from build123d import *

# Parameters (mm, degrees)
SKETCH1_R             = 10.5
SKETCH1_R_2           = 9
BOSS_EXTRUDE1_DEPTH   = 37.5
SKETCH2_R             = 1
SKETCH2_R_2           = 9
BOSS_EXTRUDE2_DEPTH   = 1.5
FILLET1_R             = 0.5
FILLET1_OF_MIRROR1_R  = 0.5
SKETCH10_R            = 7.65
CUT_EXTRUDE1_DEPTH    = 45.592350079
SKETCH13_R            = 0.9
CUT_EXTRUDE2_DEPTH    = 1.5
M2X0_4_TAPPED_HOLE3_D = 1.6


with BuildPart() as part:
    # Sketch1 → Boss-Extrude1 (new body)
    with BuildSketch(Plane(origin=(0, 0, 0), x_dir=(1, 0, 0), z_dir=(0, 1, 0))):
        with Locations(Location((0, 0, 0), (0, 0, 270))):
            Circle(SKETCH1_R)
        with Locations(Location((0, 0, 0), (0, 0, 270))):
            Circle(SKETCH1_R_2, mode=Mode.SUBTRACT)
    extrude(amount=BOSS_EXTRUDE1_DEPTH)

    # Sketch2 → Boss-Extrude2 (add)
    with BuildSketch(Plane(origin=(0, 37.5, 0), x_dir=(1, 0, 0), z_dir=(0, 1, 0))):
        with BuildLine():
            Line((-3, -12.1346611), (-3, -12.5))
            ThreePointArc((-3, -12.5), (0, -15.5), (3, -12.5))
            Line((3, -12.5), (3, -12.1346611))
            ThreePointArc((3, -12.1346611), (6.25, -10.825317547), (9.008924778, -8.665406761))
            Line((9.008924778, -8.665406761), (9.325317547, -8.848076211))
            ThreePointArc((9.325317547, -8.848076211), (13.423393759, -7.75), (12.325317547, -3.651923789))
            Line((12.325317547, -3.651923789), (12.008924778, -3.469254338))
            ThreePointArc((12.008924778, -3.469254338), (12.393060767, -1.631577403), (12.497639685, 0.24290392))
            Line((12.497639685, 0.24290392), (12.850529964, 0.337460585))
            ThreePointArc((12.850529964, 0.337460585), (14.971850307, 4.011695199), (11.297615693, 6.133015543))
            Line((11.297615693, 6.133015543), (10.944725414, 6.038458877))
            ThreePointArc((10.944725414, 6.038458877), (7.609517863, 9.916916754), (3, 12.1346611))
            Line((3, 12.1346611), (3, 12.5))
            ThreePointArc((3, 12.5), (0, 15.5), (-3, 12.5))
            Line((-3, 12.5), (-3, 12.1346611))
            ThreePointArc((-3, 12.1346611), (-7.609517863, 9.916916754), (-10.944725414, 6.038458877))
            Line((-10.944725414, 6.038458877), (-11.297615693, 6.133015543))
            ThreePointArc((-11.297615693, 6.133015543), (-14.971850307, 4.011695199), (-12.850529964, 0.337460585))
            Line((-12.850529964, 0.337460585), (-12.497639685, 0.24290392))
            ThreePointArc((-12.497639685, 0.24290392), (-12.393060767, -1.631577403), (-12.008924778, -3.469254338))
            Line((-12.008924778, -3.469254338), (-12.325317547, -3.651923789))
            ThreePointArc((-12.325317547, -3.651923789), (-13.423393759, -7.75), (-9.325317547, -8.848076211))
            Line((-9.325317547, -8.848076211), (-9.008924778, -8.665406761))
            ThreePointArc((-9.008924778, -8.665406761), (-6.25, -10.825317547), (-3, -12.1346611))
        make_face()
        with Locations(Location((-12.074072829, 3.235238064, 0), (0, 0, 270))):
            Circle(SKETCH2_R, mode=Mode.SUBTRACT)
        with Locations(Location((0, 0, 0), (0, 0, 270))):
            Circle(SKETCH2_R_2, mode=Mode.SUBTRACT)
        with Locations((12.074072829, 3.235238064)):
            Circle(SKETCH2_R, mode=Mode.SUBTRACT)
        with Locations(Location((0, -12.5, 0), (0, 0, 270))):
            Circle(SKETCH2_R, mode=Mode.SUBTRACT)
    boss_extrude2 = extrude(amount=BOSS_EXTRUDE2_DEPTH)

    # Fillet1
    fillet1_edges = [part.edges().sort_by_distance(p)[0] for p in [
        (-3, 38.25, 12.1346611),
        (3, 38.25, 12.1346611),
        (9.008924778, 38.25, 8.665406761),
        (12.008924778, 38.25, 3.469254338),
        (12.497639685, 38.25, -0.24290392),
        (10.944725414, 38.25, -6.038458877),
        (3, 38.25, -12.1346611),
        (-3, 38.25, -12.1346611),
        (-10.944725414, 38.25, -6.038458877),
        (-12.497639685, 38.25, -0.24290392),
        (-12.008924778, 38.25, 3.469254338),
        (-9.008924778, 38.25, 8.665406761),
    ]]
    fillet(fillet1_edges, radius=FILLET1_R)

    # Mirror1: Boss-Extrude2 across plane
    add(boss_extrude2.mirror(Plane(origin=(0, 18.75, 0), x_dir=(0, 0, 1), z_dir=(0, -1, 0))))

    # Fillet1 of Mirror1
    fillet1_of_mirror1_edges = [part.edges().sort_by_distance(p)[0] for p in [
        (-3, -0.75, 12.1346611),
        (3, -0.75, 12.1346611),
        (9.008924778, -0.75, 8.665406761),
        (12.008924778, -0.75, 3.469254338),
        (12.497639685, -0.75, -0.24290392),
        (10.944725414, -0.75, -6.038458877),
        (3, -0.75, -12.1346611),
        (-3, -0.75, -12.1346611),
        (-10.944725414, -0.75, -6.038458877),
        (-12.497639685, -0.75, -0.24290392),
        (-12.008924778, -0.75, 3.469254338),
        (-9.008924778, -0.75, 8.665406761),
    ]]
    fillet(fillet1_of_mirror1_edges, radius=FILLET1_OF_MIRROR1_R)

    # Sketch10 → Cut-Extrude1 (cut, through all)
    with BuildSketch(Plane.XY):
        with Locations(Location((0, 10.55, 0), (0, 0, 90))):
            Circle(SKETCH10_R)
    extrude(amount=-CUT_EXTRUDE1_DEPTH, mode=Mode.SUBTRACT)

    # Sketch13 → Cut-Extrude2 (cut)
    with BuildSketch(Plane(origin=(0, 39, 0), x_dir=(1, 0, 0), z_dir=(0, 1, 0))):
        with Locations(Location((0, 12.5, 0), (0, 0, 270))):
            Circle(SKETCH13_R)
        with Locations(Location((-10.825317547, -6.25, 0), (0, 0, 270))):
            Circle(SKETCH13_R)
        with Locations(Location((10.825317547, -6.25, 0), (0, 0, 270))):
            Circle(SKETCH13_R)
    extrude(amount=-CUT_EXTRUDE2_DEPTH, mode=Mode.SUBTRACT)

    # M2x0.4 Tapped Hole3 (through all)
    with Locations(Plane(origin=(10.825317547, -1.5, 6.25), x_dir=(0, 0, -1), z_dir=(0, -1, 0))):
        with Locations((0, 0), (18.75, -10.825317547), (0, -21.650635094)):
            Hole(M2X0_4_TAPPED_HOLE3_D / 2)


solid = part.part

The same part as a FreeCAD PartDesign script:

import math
import FreeCAD as App
import Part
import Sketcher
from FreeCAD import Vector
Q = App.Units.Quantity


def edges_at(feature, points):
    """Names of the edges that pass closest to the given points."""
    edges = feature.Shape.Edges
    near = lambda p: min(range(len(edges)), key=lambda i: edges[i].distToShape(Part.Vertex(*p))[0])
    return sorted({f"Edge{near(p) + 1}" for p in points})

doc = App.newDocument("Part")
params = doc.addObject("Spreadsheet::Sheet", "Params")
for row, (alias, value) in enumerate([
    ("sketch1_diameter", "21 mm"),
    ("sketch1_diameter2", "18 mm"),
    ("pad1_length", "37.5 mm"),
    ("sketch2_diameter", "2 mm"),
    ("sketch2_diameter2", "18 mm"),
    ("sketch2_radius", "3 mm"),
    ("sketch2_radius2", "12.5 mm"),
    ("pad2_length", "1.5 mm"),
    ("fillet_radius", "0.5 mm"),
    ("fillet2_radius", "0.5 mm"),
    ("sketch3_diameter", "15.3 mm"),
    ("sketch4_diameter", "1.8 mm"),
    ("pocket2_length", "1.5 mm"),
    ("sketch5_diameter", "1.6 mm"),
    ("hole_diameter", "1.6 mm"),
], start=1):
    params.set(f"A{row}", alias)
    params.set(f"B{row}", "=" + value)
    params.setAlias(f"B{row}", alias)

body = doc.addObject("PartDesign::Body", "Body")

sketch1 = body.newObject("Sketcher::SketchObject", "Sketch")
sketch1.AttachmentSupport = (doc.getObject("XZ_Plane"), [""])
sketch1.MapMode = "FlatFace"
sketch1.addGeometry(Part.Circle(Vector(0, 0, 0), Vector(0, 0, 1), 10), False)
sketch1.addGeometry(Part.Circle(Vector(0, 0, 0), Vector(0, 0, 1), 9), False)
sketch1.addConstraint(Sketcher.Constraint("Coincident", 0, 3, -1, 1))
sketch1.addConstraint(Sketcher.Constraint("Coincident", 1, 3, -1, 1))
sketch1.addConstraint(Sketcher.Constraint("Diameter", 0, 21.0))
sketch1.addConstraint(Sketcher.Constraint("Diameter", 1, 18.0))
sketch1.setExpression("Constraints[2]", "Params.sketch1_diameter")
sketch1.setExpression("Constraints[3]", "Params.sketch1_diameter2")
pad1 = body.newObject("PartDesign::Pad", "Pad")
pad1.Profile = sketch1
pad1.setExpression("Length", "Params.pad1_length")
pad1.Reversed = True

sketch2 = body.newObject("Sketcher::SketchObject", "Sketch001")
sketch2.AttachmentSupport = (doc.getObject("XZ_Plane"), [""])
sketch2.MapMode = "FlatFace"
sketch2.AttachmentOffset = App.Placement(Vector(0, 0, -37.5), App.Rotation())
sketch2.addGeometry(Part.LineSegment(Vector(-3, 12.13, 0), Vector(-3, 12.5, 0)), False)
sketch2.addGeometry(Part.ArcOfCircle(Part.Circle(Vector(0, 12.5, 0), Vector(0, 0, 1), 3), math.radians(0), math.radians(180)), False)
sketch2.addGeometry(Part.LineSegment(Vector(3, 12.5, 0), Vector(3, 12.13, 0)), False)
sketch2.addGeometry(Part.ArcOfCircle(Part.Circle(Vector(0, 0, 0), Vector(0, 0, 1), 12.5), math.radians(44), math.radians(76)), False)
sketch2.addGeometry(Part.LineSegment(Vector(9.01, 8.67, 0), Vector(9.33, 8.85, 0)), False)
sketch2.addGeometry(Part.ArcOfCircle(Part.Circle(Vector(10.83, 6.25, 0), Vector(0, 0, 1), 3), math.radians(-60), math.radians(120)), False)
sketch2.addGeometry(Part.LineSegment(Vector(12.33, 3.65, 0), Vector(12.01, 3.47, 0)), False)
sketch2.addGeometry(Part.ArcOfCircle(Part.Circle(Vector(0, 0, 0), Vector(0, 0, 1), 12.5), math.radians(-1.11), math.radians(16.11)), False)
sketch2.addGeometry(Part.LineSegment(Vector(12.5, -0.24, 0), Vector(12.85, -0.34, 0)), False)
sketch2.addGeometry(Part.ArcOfCircle(Part.Circle(Vector(12.07, -3.24, 0), Vector(0, 0, 1), 3), math.radians(-105), math.radians(75)), False)
sketch2.addGeometry(Part.LineSegment(Vector(11.3, -6.13, 0), Vector(10.94, -6.04, 0)), False)
sketch2.addGeometry(Part.ArcOfCircle(Part.Circle(Vector(0, 0, 0), Vector(0, 0, 1), 12.5), math.radians(-76), math.radians(-29)), False)
sketch2.addGeometry(Part.LineSegment(Vector(3, -12.13, 0), Vector(3, -12.5, 0)), False)
sketch2.addGeometry(Part.ArcOfCircle(Part.Circle(Vector(0, -12.5, 0), Vector(0, 0, 1), 3), math.radians(180), math.radians(360)), False)
sketch2.addGeometry(Part.LineSegment(Vector(-3, -12.5, 0), Vector(-3, -12.13, 0)), False)
sketch2.addGeometry(Part.ArcOfCircle(Part.Circle(Vector(0, 0, 0), Vector(0, 0, 1), 12.5), math.radians(-151), math.radians(-104)), False)
sketch2.addGeometry(Part.LineSegment(Vector(-10.94, -6.04, 0), Vector(-11.3, -6.13, 0)), False)
sketch2.addGeometry(Part.ArcOfCircle(Part.Circle(Vector(-12.07, -3.24, 0), Vector(0, 0, 1), 3), math.radians(105), math.radians(285)), False)
sketch2.addGeometry(Part.LineSegment(Vector(-12.85, -0.34, 0), Vector(-12.5, -0.24, 0)), False)
sketch2.addGeometry(Part.ArcOfCircle(Part.Circle(Vector(0, 0, 0), Vector(0, 0, 1), 12.5), math.radians(163.89), math.radians(181.11)), False)
sketch2.addGeometry(Part.LineSegment(Vector(-12.01, 3.47, 0), Vector(-12.33, 3.65, 0)), False)
sketch2.addGeometry(Part.ArcOfCircle(Part.Circle(Vector(-10.83, 6.25, 0), Vector(0, 0, 1), 3), math.radians(60), math.radians(240)), False)
sketch2.addGeometry(Part.LineSegment(Vector(-9.33, 8.85, 0), Vector(-9.01, 8.67, 0)), False)
sketch2.addGeometry(Part.ArcOfCircle(Part.Circle(Vector(0, 0, 0), Vector(0, 0, 1), 12.5), math.radians(104), math.radians(136)), False)
sketch2.addGeometry(Part.Circle(Vector(0, 12.5, 0), Vector(0, 0, 1), 1), False)
sketch2.addGeometry(Part.Circle(Vector(-12.07, -3.24, 0), Vector(0, 0, 1), 1), False)
sketch2.addGeometry(Part.Circle(Vector(0, 0, 0), Vector(0, 0, 1), 9), False)
sketch2.addGeometry(Part.Circle(Vector(12.07, -3.24, 0), Vector(0, 0, 1), 1), False)
sketch2.addConstraint(Sketcher.Constraint("Tangent", 0, 2, 1, 2))
sketch2.addConstraint(Sketcher.Constraint("Tangent", 1, 1, 2, 1))
sketch2.addConstraint(Sketcher.Constraint("Coincident", 2, 2, 3, 2))
sketch2.addConstraint(Sketcher.Constraint("Coincident", 3, 1, 4, 1))
sketch2.addConstraint(Sketcher.Constraint("Tangent", 4, 2, 5, 2))
sketch2.addConstraint(Sketcher.Constraint("Tangent", 5, 1, 6, 1))
sketch2.addConstraint(Sketcher.Constraint("Coincident", 6, 2, 7, 2))
sketch2.addConstraint(Sketcher.Constraint("Coincident", 7, 1, 8, 1))
sketch2.addConstraint(Sketcher.Constraint("Tangent", 8, 2, 9, 2))
sketch2.addConstraint(Sketcher.Constraint("Tangent", 9, 1, 10, 1))
sketch2.addConstraint(Sketcher.Constraint("Coincident", 10, 2, 11, 2))
sketch2.addConstraint(Sketcher.Constraint("Coincident", 11, 1, 12, 1))
sketch2.addConstraint(Sketcher.Constraint("Tangent", 12, 2, 13, 2))
sketch2.addConstraint(Sketcher.Constraint("Tangent", 13, 1, 14, 1))
sketch2.addConstraint(Sketcher.Constraint("Coincident", 14, 2, 15, 2))
sketch2.addConstraint(Sketcher.Constraint("Coincident", 15, 1, 16, 1))
sketch2.addConstraint(Sketcher.Constraint("Tangent", 16, 2, 17, 2))
sketch2.addConstraint(Sketcher.Constraint("Tangent", 17, 1, 18, 1))
sketch2.addConstraint(Sketcher.Constraint("Coincident", 18, 2, 19, 2))
sketch2.addConstraint(Sketcher.Constraint("Coincident", 19, 1, 20, 1))
sketch2.addConstraint(Sketcher.Constraint("Tangent", 20, 2, 21, 2))
sketch2.addConstraint(Sketcher.Constraint("Tangent", 21, 1, 22, 1))
sketch2.addConstraint(Sketcher.Constraint("Coincident", 22, 2, 23, 2))
sketch2.addConstraint(Sketcher.Constraint("Coincident", 23, 1, 0, 1))
sketch2.addConstraint(Sketcher.Constraint("Vertical", 0))
sketch2.addConstraint(Sketcher.Constraint("Vertical", 2))
sketch2.addConstraint(Sketcher.Constraint("Vertical", 12))
sketch2.addConstraint(Sketcher.Constraint("Vertical", 14))
sketch2.addConstraint(Sketcher.Constraint("Coincident", 3, 3, -1, 1))
sketch2.addConstraint(Sketcher.Constraint("Coincident", 7, 3, -1, 1))
sketch2.addConstraint(Sketcher.Constraint("Coincident", 11, 3, -1, 1))
sketch2.addConstraint(Sketcher.Constraint("Coincident", 15, 3, -1, 1))
sketch2.addConstraint(Sketcher.Constraint("Coincident", 19, 3, -1, 1))
sketch2.addConstraint(Sketcher.Constraint("Coincident", 23, 3, -1, 1))
sketch2.addConstraint(Sketcher.Constraint("Coincident", 26, 3, -1, 1))
sketch2.addConstraint(Sketcher.Constraint("Coincident", 24, 3, 1, 3))
sketch2.addConstraint(Sketcher.Constraint("Coincident", 25, 3, 17, 3))
sketch2.addConstraint(Sketcher.Constraint("Coincident", 27, 3, 9, 3))
sketch2.addConstraint(Sketcher.Constraint("Equal", 1, 5))
sketch2.addConstraint(Sketcher.Constraint("Equal", 3, 7))
sketch2.addConstraint(Sketcher.Constraint("Equal", 5, 9))
sketch2.addConstraint(Sketcher.Constraint("Equal", 7, 11))
sketch2.addConstraint(Sketcher.Constraint("Equal", 9, 13))
sketch2.addConstraint(Sketcher.Constraint("Equal", 11, 15))
sketch2.addConstraint(Sketcher.Constraint("Equal", 13, 17))
sketch2.addConstraint(Sketcher.Constraint("Equal", 15, 19))
sketch2.addConstraint(Sketcher.Constraint("Equal", 17, 21))
sketch2.addConstraint(Sketcher.Constraint("Equal", 19, 23))
sketch2.addConstraint(Sketcher.Constraint("Equal", 24, 25))
sketch2.addConstraint(Sketcher.Constraint("Equal", 25, 27))
sketch2.addConstraint(Sketcher.Constraint("Symmetric", 1, 3, 13, 3, -1, 1))
sketch2.addConstraint(Sketcher.Constraint("Symmetric", 9, 3, 17, 3, -2))
sketch2.addConstraint(Sketcher.Constraint("Symmetric", 5, 3, 21, 3, -2))
sketch2.addConstraint(Sketcher.Constraint("PointOnObject", 1, 3, -2))
sketch2.addConstraint(Sketcher.Constraint("Parallel", 4, 6))
sketch2.addConstraint(Sketcher.Constraint("Parallel", 8, 10))
sketch2.addConstraint(Sketcher.Constraint("Parallel", 16, 18))
sketch2.addConstraint(Sketcher.Constraint("Parallel", 20, 22))
sketch2.addConstraint(Sketcher.Constraint("Horizontal", 10, 2, 15, 1))
sketch2.addConstraint(Sketcher.Constraint("Horizontal", 6, 2, 19, 1))
sketch2.addConstraint(Sketcher.Constraint("Equal", 4, 6))
sketch2.addConstraint(Sketcher.Constraint("Equal", 6, 8))
sketch2.addConstraint(Sketcher.Constraint("Equal", 8, 10))
sketch2.addConstraint(Sketcher.Constraint("Diameter", 24, 2.0))
sketch2.addConstraint(Sketcher.Constraint("Diameter", 26, 18.0))
sketch2.addConstraint(Sketcher.Constraint("Radius", 1, 3.0))
sketch2.addConstraint(Sketcher.Constraint("Radius", 3, 12.5))
sketch2.addConstraint(Sketcher.Constraint("Angle", 4, Q("30 deg")))
sketch2.addConstraint(Sketcher.Constraint("Angle", 8, Q("-15 deg")))
sketch2.addConstraint(Sketcher.Constraint("DistanceY", -1, 1, 1, 3, 12.5))
sketch2.addConstraint(Sketcher.Constraint("DistanceY", -1, 1, 5, 3, 6.25))
sketch2.setExpression("Constraints[63]", "Params.sketch2_diameter")
sketch2.setExpression("Constraints[64]", "Params.sketch2_diameter2")
sketch2.setExpression("Constraints[65]", "Params.sketch2_radius")
sketch2.setExpression("Constraints[66]", "Params.sketch2_radius2")
pad2 = body.newObject("PartDesign::Pad", "Pad001")
pad2.Profile = sketch2
pad2.setExpression("Length", "Params.pad2_length")
pad2.Reversed = True
doc.recompute()

fillet = body.newObject("PartDesign::Fillet", "Fillet")
fillet.Base = (pad2, edges_at(pad2, [
    (-3, 38.25, 12.135),
    (3, 38.25, 12.135),
    (9.009, 38.25, 8.665),
    (12.009, 38.25, 3.469),
    (12.498, 38.25, -0.243),
    (10.945, 38.25, -6.038),
    (3, 38.25, -12.135),
    (-3, 38.25, -12.135),
    (-10.945, 38.25, -6.038),
    (-12.498, 38.25, -0.243),
    (-12.009, 38.25, 3.469),
    (-9.009, 38.25, 8.665),
]))
fillet.setExpression("Radius", "Params.fillet_radius")
doc.recompute()

datumplane = body.newObject("PartDesign::Plane", "DatumPlane")
datumplane.AttachmentSupport = (doc.getObject("XZ_Plane"), [""])
datumplane.MapMode = "FlatFace"
datumplane.AttachmentOffset = App.Placement(Vector(0, 0, -18.75), App.Rotation())
mirrored = body.newObject("PartDesign::Mirrored", "Mirrored")
mirrored.Originals = [pad2]
mirrored.MirrorPlane = (datumplane, [""])
body.Tip = mirrored
doc.recompute()

fillet2 = body.newObject("PartDesign::Fillet", "Fillet001")
fillet2.Base = (mirrored, edges_at(mirrored, [
    (-3, -0.75, 12.135),
    (3, -0.75, 12.135),
    (9.009, -0.75, 8.665),
    (12.009, -0.75, 3.469),
    (12.498, -0.75, -0.243),
    (10.945, -0.75, -6.038),
    (3, -0.75, -12.135),
    (-3, -0.75, -12.135),
    (-10.945, -0.75, -6.038),
    (-12.498, -0.75, -0.243),
    (-12.009, -0.75, 3.469),
    (-9.009, -0.75, 8.665),
]))
fillet2.setExpression("Radius", "Params.fillet2_radius")

sketch3 = body.newObject("Sketcher::SketchObject", "Sketch002")
sketch3.AttachmentSupport = (doc.getObject("XY_Plane"), [""])
sketch3.MapMode = "FlatFace"
sketch3.addGeometry(Part.Circle(Vector(0, 11, 0), Vector(0, 0, 1), 8), False)
sketch3.addConstraint(Sketcher.Constraint("PointOnObject", 0, 3, -2))
sketch3.addConstraint(Sketcher.Constraint("Diameter", 0, 15.3))
sketch3.addConstraint(Sketcher.Constraint("DistanceY", -1, 1, 0, 3, 10.55))
sketch3.setExpression("Constraints[1]", "Params.sketch3_diameter")
pocket1 = body.newObject("PartDesign::Pocket", "Pocket")
pocket1.Profile = sketch3
pocket1.Type = "ThroughAll"

sketch4 = body.newObject("Sketcher::SketchObject", "Sketch003")
sketch4.AttachmentSupport = (doc.getObject("XZ_Plane"), [""])
sketch4.MapMode = "FlatFace"
sketch4.AttachmentOffset = App.Placement(Vector(0, 0, -39), App.Rotation())
sketch4.addGeometry(Part.Circle(Vector(0, -12.5, 0), Vector(0, 0, 1), 0.9), False)
sketch4.addGeometry(Part.Circle(Vector(-10.8, 6.2, 0), Vector(0, 0, 1), 0.9), False)
sketch4.addGeometry(Part.Circle(Vector(10.8, 6.2, 0), Vector(0, 0, 1), 0.9), False)
sketch4.addConstraint(Sketcher.Constraint("Equal", 0, 1))
sketch4.addConstraint(Sketcher.Constraint("Equal", 1, 2))
sketch4.addConstraint(Sketcher.Constraint("Symmetric", 1, 3, 2, 3, -2))
sketch4.addConstraint(Sketcher.Constraint("PointOnObject", 0, 3, -2))
sketch4.addConstraint(Sketcher.Constraint("Diameter", 0, 1.8))
sketch4.addConstraint(Sketcher.Constraint("DistanceY", 0, 3, -1, 1, 12.5))
sketch4.addConstraint(Sketcher.Constraint("DistanceY", -1, 1, 1, 3, 6.25))
sketch4.addConstraint(Sketcher.Constraint("DistanceX", 1, 3, -1, 1, 10.825318))
sketch4.setExpression("Constraints[4]", "Params.sketch4_diameter")
pocket2 = body.newObject("PartDesign::Pocket", "Pocket001")
pocket2.Profile = sketch4
pocket2.setExpression("Length", "Params.pocket2_length")
pocket2.Reversed = True

sketch5 = body.newObject("Sketcher::SketchObject", "Sketch004")
sketch5.AttachmentSupport = (doc.getObject("XZ_Plane"), [""])
sketch5.MapMode = "FlatFace"
sketch5.AttachmentOffset = App.Placement(Vector(0, 0, 1.5), App.Rotation())
sketch5.addGeometry(Part.Circle(Vector(10.8, 6.2, 0), Vector(0, 0, 1), 0.8), False)
sketch5.addGeometry(Part.Circle(Vector(0, -12.5, 0), Vector(0, 0, 1), 0.8), False)
sketch5.addGeometry(Part.Circle(Vector(-10.8, 6.2, 0), Vector(0, 0, 1), 0.8), False)
sketch5.addConstraint(Sketcher.Constraint("Equal", 0, 1))
sketch5.addConstraint(Sketcher.Constraint("Equal", 1, 2))
sketch5.addConstraint(Sketcher.Constraint("Symmetric", 0, 3, 2, 3, -2))
sketch5.addConstraint(Sketcher.Constraint("PointOnObject", 1, 3, -2))
sketch5.addConstraint(Sketcher.Constraint("Diameter", 0, 1.6))
sketch5.addConstraint(Sketcher.Constraint("DistanceY", 1, 3, -1, 1, 12.5))
sketch5.addConstraint(Sketcher.Constraint("DistanceY", -1, 1, 0, 3, 6.25))
sketch5.addConstraint(Sketcher.Constraint("DistanceX", -1, 1, 0, 3, 10.825318))
sketch5.setExpression("Constraints[4]", "Params.sketch5_diameter")
doc.recompute()
hole = body.newObject("PartDesign::Hole", "Hole")
hole.Profile = sketch5
hole.ThreadType = "None"
hole.setExpression("Diameter", "Params.hole_diameter")
hole.DepthType = "ThroughAll"

doc.recompute()
